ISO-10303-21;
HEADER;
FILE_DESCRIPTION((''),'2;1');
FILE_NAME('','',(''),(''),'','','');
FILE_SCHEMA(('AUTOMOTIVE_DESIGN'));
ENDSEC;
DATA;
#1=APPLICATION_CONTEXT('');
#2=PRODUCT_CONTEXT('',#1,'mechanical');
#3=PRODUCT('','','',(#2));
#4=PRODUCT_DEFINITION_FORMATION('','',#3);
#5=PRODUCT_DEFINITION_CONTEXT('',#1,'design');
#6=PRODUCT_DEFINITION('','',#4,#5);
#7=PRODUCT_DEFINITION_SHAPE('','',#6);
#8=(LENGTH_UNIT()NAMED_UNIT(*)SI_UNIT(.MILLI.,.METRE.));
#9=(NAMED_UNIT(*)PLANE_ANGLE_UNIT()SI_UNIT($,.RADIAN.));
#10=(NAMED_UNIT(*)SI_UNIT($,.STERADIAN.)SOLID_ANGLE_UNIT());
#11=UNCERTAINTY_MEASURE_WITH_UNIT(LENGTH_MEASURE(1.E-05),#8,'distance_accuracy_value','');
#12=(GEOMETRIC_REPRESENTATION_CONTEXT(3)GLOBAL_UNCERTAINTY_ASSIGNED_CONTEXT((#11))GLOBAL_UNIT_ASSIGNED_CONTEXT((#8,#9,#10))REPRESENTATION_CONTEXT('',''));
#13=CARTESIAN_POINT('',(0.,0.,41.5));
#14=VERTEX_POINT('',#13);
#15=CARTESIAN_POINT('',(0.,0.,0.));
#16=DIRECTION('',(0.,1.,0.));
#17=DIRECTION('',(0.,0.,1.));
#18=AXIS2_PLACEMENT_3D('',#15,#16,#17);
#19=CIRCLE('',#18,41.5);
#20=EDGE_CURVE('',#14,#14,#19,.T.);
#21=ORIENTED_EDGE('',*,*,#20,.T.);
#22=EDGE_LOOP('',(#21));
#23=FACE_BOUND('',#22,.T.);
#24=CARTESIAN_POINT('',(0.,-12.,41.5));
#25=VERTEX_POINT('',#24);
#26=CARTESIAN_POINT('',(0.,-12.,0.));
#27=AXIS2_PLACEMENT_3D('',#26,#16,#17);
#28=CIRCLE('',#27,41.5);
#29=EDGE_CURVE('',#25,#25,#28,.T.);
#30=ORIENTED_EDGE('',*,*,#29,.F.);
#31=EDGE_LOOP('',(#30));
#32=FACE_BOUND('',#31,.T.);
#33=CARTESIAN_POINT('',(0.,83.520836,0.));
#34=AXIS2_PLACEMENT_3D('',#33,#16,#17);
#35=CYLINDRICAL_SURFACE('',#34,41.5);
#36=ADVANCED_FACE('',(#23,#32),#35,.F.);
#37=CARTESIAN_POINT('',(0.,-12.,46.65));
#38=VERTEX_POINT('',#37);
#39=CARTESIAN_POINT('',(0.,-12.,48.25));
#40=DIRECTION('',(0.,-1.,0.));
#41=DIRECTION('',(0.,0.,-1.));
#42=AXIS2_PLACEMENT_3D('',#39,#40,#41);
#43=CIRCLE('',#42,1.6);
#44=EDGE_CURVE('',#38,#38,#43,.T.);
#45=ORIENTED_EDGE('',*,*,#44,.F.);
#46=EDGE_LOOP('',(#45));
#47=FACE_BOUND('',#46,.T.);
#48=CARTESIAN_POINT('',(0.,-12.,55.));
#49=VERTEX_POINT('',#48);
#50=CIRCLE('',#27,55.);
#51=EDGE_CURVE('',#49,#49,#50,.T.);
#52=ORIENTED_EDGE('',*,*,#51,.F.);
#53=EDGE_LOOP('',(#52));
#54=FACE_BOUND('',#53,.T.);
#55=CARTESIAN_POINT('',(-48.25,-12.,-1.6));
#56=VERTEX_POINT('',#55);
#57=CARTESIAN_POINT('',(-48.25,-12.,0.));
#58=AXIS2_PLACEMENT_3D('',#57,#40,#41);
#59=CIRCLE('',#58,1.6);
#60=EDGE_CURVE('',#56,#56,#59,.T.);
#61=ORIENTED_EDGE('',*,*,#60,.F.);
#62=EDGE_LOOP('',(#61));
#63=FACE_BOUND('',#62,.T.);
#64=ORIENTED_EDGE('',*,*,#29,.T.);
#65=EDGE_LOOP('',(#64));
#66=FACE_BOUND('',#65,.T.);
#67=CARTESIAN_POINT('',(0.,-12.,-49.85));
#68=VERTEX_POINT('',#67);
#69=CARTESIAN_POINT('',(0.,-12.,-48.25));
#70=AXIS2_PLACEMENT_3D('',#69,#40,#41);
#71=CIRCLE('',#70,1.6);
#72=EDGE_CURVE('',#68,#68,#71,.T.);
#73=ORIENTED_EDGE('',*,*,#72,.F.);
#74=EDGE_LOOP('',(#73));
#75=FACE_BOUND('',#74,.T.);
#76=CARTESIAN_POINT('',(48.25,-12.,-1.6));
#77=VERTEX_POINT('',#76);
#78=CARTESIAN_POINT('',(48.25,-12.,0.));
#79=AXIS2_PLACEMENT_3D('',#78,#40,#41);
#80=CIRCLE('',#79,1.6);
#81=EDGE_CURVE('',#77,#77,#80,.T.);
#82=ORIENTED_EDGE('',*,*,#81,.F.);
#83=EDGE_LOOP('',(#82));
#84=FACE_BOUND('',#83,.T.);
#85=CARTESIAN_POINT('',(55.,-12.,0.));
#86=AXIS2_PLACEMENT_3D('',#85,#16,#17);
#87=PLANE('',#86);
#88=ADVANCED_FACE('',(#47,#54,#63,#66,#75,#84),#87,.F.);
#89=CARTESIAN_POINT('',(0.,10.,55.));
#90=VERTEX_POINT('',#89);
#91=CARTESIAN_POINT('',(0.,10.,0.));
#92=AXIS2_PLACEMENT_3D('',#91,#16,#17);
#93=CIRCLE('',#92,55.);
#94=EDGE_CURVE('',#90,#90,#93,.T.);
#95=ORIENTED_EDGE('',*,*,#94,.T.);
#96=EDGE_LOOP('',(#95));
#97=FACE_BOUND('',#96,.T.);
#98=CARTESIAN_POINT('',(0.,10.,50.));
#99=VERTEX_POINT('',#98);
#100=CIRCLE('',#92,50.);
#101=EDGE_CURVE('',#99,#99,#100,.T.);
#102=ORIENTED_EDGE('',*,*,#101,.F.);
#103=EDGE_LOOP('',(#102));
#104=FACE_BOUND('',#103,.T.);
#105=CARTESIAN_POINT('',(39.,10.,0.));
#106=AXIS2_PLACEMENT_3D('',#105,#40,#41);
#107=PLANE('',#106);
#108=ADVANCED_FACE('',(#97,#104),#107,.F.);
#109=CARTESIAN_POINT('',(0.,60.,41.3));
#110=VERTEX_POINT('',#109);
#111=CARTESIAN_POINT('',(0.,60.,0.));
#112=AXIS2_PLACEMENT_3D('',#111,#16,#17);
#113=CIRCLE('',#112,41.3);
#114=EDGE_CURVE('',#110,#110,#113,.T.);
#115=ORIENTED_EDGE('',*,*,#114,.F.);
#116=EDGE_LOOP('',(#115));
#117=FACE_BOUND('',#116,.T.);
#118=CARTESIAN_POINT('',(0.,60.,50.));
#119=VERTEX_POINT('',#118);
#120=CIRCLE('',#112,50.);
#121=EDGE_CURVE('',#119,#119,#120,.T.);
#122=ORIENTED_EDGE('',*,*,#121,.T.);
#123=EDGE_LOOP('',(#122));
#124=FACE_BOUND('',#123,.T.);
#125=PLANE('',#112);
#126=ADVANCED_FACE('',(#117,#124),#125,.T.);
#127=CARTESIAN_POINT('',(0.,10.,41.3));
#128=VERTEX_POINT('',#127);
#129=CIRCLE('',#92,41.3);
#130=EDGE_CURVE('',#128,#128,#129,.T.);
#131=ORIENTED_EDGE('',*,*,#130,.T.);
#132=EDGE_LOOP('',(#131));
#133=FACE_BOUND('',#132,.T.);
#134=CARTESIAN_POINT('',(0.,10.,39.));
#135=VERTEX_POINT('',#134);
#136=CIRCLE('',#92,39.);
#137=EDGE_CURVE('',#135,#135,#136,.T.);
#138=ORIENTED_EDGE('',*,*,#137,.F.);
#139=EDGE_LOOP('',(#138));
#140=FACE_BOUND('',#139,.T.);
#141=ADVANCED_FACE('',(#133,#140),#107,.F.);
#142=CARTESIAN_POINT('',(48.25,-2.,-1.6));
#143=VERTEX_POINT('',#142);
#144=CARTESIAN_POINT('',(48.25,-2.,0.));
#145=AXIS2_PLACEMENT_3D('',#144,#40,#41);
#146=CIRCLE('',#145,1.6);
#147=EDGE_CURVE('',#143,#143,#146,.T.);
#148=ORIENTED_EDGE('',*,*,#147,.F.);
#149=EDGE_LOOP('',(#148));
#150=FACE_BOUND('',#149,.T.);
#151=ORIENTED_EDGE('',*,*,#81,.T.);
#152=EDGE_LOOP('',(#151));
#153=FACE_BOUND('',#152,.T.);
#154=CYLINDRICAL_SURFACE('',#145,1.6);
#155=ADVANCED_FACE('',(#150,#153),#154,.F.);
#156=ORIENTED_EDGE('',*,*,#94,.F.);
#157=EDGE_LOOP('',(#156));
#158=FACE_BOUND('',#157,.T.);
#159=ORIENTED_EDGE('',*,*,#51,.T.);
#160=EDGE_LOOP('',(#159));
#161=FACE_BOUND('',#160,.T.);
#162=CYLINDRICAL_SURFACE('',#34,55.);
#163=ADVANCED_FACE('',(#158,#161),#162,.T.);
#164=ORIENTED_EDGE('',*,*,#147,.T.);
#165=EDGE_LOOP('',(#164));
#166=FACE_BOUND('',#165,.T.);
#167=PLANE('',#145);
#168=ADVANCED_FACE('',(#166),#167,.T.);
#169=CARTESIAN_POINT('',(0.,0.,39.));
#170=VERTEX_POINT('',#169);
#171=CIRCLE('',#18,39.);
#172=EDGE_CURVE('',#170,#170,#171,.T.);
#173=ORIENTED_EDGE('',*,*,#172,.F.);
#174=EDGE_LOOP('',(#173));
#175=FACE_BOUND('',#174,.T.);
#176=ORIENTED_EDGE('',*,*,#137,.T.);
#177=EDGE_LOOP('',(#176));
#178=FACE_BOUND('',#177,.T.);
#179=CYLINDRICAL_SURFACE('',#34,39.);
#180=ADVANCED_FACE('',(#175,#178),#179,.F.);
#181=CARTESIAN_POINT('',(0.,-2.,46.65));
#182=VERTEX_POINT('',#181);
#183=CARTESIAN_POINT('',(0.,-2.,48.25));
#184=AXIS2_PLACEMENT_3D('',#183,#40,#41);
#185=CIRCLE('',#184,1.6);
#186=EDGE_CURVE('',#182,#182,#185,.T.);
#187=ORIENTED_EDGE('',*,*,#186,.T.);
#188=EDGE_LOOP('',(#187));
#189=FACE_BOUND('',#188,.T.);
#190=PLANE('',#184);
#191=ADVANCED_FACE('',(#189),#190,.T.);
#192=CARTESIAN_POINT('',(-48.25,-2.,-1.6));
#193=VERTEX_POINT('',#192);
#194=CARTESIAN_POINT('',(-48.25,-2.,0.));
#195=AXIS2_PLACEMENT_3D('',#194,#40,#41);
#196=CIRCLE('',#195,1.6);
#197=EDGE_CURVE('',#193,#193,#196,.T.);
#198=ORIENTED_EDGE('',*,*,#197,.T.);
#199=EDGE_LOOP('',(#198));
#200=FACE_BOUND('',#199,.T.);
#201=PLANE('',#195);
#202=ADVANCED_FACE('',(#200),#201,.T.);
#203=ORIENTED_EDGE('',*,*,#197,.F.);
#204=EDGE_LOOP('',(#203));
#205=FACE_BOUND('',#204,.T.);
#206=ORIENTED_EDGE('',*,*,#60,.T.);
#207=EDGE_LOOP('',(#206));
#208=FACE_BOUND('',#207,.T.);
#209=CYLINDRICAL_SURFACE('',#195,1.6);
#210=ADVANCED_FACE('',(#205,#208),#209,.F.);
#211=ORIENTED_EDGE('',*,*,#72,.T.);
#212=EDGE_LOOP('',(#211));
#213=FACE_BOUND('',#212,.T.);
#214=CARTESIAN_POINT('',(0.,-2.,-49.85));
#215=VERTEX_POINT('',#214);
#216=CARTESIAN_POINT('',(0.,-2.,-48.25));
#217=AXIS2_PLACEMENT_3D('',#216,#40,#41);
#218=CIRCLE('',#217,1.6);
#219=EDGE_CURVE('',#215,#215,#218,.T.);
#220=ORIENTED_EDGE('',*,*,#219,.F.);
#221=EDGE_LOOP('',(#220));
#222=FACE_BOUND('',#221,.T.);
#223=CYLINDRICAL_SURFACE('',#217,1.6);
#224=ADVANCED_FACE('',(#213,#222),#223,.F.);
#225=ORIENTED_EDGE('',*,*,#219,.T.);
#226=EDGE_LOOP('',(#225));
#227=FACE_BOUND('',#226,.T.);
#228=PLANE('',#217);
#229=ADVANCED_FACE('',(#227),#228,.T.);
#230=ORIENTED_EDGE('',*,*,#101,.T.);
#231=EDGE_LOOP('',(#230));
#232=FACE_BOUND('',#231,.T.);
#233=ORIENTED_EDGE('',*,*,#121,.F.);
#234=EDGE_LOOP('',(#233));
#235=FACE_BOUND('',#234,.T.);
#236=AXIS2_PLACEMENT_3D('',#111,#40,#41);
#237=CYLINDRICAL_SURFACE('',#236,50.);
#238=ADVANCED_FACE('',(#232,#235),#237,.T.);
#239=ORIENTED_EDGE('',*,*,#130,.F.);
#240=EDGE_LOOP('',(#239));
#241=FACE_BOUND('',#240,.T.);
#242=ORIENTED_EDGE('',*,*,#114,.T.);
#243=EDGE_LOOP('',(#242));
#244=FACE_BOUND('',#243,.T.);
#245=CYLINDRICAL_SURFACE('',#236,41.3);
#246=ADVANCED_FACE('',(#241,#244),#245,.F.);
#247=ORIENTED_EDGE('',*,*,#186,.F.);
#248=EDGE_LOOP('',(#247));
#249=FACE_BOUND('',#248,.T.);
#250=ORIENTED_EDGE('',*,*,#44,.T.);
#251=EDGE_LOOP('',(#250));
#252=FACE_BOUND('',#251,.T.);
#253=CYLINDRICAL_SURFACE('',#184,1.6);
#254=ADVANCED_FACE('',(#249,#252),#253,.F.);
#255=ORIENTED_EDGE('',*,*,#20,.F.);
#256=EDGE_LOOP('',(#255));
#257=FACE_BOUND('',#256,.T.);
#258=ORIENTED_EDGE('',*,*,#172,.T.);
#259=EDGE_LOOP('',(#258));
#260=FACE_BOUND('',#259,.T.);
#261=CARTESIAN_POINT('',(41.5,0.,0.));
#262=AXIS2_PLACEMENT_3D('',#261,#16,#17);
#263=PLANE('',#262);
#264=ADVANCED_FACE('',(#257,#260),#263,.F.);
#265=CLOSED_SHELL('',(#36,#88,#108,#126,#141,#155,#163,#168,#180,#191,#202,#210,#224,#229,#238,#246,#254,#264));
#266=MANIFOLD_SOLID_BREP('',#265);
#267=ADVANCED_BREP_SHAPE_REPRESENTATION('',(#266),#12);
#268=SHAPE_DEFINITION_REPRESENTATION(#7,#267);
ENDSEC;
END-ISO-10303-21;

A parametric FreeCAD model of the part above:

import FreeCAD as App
import Part
import Sketcher

V = App.Vector

doc = App.newDocument("Part")
body = doc.addObject("PartDesign::Body", "Body")

sketch1 = body.newObject("Sketcher::SketchObject", "Sketch")
sketch1.AttachmentSupport = (doc.getObject("XY_Plane"), [""])
sketch1.MapMode = "FlatFace"
sketch1.addGeometry([
    Part.LineSegment(V(39, 10, 0), V(39, 0, 0)),
    Part.LineSegment(V(39, 0, 0), V(41.5, 0, 0)),
    Part.LineSegment(V(41.5, 0, 0), V(41.5, -12, 0)),
    Part.LineSegment(V(41.5, -12, 0), V(55, -12, 0)),
    Part.LineSegment(V(55, -12, 0), V(55, 10, 0)),
    Part.LineSegment(V(55, 10, 0), V(39, 10, 0)),
], False)
sketch1.addConstraint([
    Sketcher.Constraint("Coincident", 0, 2, 1, 1),
    Sketcher.Constraint("Coincident", 1, 2, 2, 1),
    Sketcher.Constraint("Coincident", 2, 2, 3, 1),
    Sketcher.Constraint("Coincident", 3, 2, 4, 1),
    Sketcher.Constraint("Coincident", 4, 2, 5, 1),
    Sketcher.Constraint("Coincident", 5, 2, 0, 1),
    Sketcher.Constraint("Vertical", 0),
    Sketcher.Constraint("Horizontal", 1),
    Sketcher.Constraint("Vertical", 2),
    Sketcher.Constraint("Horizontal", 3),
    Sketcher.Constraint("Vertical", 4),
    Sketcher.Constraint("Horizontal", 5),
    Sketcher.Constraint("PointOnObject", 0, 2, -1),
    Sketcher.Constraint("DistanceX", 5, 2, 5, 1, 16.0),
    Sketcher.Constraint("DistanceY", 0, 2, 0, 1, 10.0),
    Sketcher.Constraint("DistanceY", 2, 2, 2, 1, 12.0),
    Sketcher.Constraint("DistanceX", 1, 1, 1, 2, 2.5),
    Sketcher.Constraint("DistanceX", -1, 1, 0, 2, 39.0),
])
revolution = body.newObject("PartDesign::Revolution", "Revolution")
revolution.Profile = sketch1
revolution.ReferenceAxis = (sketch1, ["V_Axis"])
revolution.Angle = 360

sketch2 = body.newObject("Sketcher::SketchObject", "Sketch001")
sketch2.AttachmentSupport = (doc.getObject("XZ_Plane"), [""])
sketch2.MapMode = "FlatFace"
sketch2.AttachmentOffset = App.Placement(V(0, 0, -10), App.Rotation())
sketch2.addGeometry([
    Part.Circle(V(0, 0, 0), V(0, 0, 1), 50),
    Part.Circle(V(0, 0, 0), V(0, 0, 1), 41),
], False)
sketch2.addConstraint([
    Sketcher.Constraint("Coincident", 0, 3, -1, 1),
    Sketcher.Constraint("Coincident", 1, 3, -1, 1),
    Sketcher.Constraint("Diameter", 0, 100.0),
    Sketcher.Constraint("Diameter", 1, 82.6),
])
pad1 = body.newObject("PartDesign::Pad", "Pad")
pad1.Profile = sketch2
pad1.Length = 50
pad1.Reversed = True

sketch3 = body.newObject("Sketcher::SketchObject", "Sketch002")
sketch3.AttachmentSupport = (doc.getObject("XZ_Plane"), [""])
sketch3.MapMode = "FlatFace"
sketch3.AttachmentOffset = App.Placement(V(0, 0, 12), App.Rotation())
sketch3.addGeometry([
    Part.Circle(V(0, 48.2, 0), V(0, 0, 1), 1.6),
    Part.Circle(V(48.2, 0, 0), V(0, 0, 1), 1.6),
    Part.Circle(V(0, -48.2, 0), V(0, 0, 1), 1.6),
    Part.Circle(V(-48.2, 0, 0), V(0, 0, 1), 1.6),
], False)
sketch3.addConstraint([
    Sketcher.Constraint("Equal", 0, 1),
    Sketcher.Constraint("Equal", 1, 2),
    Sketcher.Constraint("Equal", 2, 3),
    Sketcher.Constraint("Symmetric", 0, 3, 2, 3, -1, 1),
    Sketcher.Constraint("Symmetric", 1, 3, 3, 3, -1, 1),
    Sketcher.Constraint("PointOnObject", 0, 3, -2),
    Sketcher.Constraint("PointOnObject", 1, 3, -1),
    Sketcher.Constraint("Diameter", 0, 3.2),
    Sketcher.Constraint("DistanceY", 2, 3, 0, 3, 96.5),
    Sketcher.Constraint("DistanceX", 3, 3, 1, 3, 96.5),
])
pocket1 = body.newObject("PartDesign::Pocket", "Pocket")
pocket1.Profile = sketch3
pocket1.Length = 10

doc.recompute()
